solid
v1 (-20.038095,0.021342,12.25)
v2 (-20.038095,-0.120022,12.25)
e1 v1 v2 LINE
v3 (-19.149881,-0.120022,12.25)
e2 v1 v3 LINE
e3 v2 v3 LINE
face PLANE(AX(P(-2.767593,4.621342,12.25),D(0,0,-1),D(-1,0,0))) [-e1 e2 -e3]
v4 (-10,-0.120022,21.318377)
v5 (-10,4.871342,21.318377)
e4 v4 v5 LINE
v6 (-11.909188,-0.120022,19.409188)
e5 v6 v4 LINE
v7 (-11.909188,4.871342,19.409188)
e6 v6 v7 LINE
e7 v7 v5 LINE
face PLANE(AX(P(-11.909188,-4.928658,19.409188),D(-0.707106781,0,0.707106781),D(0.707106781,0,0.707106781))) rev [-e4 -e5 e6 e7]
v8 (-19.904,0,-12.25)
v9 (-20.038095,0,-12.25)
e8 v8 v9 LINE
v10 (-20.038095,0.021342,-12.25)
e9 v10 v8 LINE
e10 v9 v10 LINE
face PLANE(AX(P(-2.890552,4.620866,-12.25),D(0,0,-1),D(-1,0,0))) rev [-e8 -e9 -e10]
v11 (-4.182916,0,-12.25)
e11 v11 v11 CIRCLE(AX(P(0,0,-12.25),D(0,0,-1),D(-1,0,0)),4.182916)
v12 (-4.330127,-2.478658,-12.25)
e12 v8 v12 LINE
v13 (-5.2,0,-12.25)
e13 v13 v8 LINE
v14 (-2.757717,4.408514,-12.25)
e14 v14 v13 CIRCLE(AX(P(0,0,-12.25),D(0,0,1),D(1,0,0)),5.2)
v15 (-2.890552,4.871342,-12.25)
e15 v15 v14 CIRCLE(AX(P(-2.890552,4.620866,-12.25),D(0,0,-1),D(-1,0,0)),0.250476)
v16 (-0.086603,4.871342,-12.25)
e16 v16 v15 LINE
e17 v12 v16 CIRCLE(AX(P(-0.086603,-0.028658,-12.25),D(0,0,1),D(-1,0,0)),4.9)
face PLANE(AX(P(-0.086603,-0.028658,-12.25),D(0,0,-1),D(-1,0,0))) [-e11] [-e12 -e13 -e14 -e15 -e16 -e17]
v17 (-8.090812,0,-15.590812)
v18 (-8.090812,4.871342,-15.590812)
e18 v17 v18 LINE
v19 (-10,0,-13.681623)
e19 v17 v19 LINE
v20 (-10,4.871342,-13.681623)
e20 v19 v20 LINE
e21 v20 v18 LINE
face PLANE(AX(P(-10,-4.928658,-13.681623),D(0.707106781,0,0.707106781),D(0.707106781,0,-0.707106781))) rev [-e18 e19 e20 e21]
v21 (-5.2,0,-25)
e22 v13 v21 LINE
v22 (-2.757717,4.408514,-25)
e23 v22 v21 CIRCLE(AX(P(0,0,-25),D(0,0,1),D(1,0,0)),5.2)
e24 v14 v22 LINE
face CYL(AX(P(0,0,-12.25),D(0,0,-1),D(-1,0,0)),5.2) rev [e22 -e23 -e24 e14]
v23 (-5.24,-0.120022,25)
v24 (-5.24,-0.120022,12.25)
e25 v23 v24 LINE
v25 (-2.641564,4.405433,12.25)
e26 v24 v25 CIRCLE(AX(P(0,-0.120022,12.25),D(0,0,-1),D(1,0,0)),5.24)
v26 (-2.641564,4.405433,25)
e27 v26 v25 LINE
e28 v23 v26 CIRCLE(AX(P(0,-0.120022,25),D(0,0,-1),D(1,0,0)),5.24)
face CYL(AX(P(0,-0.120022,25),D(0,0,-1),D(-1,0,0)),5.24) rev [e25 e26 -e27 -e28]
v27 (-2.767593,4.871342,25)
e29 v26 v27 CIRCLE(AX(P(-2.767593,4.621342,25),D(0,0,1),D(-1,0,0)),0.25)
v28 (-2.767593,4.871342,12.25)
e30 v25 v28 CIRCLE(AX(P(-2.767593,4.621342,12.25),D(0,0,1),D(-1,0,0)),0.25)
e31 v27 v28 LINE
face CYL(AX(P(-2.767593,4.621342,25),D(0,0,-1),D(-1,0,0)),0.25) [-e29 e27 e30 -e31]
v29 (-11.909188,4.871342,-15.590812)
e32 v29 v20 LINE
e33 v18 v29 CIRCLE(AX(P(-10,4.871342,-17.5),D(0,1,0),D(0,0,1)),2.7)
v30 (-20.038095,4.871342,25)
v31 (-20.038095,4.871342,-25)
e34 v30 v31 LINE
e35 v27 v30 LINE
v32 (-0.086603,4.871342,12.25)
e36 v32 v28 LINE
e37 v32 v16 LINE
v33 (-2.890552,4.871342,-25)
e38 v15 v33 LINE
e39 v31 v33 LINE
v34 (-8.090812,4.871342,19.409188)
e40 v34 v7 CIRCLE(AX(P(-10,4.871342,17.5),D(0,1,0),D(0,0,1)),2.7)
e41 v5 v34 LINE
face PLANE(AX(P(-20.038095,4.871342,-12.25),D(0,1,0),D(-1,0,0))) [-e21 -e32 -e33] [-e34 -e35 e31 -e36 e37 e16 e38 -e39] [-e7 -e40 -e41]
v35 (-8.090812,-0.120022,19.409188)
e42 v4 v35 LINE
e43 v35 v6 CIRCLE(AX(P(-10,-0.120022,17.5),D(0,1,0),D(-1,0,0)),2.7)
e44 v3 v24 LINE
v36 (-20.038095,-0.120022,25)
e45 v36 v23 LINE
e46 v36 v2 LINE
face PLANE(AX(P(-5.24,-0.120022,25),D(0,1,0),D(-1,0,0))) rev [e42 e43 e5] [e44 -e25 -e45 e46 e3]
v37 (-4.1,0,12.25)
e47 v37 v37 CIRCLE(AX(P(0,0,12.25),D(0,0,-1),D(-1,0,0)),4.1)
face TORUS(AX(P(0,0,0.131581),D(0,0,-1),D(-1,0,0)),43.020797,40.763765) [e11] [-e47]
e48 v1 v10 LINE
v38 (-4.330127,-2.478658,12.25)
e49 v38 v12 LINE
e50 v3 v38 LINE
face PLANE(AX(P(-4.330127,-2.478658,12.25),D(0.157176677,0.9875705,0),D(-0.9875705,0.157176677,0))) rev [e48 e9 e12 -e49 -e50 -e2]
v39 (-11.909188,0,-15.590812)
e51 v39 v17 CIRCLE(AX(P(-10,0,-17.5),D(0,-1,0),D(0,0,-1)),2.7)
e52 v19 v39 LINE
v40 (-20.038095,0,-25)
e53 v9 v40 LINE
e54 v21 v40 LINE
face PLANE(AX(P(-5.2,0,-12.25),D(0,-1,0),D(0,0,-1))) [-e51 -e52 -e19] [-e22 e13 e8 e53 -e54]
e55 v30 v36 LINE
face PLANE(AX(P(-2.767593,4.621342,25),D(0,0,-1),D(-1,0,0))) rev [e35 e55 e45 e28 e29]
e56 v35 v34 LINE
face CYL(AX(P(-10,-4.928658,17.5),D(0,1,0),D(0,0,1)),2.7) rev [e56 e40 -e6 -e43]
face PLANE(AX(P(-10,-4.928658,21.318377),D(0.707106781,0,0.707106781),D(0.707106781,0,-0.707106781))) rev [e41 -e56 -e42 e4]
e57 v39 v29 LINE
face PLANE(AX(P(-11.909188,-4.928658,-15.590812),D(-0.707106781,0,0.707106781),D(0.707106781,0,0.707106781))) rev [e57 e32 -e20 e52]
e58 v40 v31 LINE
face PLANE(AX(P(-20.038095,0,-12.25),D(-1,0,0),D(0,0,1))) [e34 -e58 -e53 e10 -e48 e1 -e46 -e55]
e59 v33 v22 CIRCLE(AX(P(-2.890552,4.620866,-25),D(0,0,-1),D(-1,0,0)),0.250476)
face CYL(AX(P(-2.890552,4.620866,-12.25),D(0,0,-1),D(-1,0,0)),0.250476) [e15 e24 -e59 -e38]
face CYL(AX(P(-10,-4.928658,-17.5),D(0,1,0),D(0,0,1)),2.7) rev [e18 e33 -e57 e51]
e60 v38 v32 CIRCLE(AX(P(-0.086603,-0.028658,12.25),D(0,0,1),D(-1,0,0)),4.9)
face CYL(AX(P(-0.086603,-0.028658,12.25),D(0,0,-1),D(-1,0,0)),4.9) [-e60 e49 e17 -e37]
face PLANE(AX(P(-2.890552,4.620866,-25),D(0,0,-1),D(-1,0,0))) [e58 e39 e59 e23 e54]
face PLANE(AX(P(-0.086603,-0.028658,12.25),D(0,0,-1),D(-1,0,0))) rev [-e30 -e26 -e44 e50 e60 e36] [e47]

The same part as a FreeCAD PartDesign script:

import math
import FreeCAD as App
import Part
import Sketcher
Q = App.Units.Quantity

doc = App.newDocument("Part")
body = doc.addObject("PartDesign::Body", "Body")

# Sketch on XY plane
sketch1 = body.newObject("Sketcher::SketchObject", "Sketch")
sketch1.AttachmentSupport = (doc.getObject("XY_Plane"), [""])
sketch1.MapMode = "FlatFace"
sketch1.AttachmentOffset = App.Placement(App.Vector(0, 0, -25), App.Rotation())
sketch1.addGeometry([
    Part.LineSegment(App.Vector(-5.2, 0, 0), App.Vector(-20.04, 0, 0)),  # 0
    Part.LineSegment(App.Vector(-20.04, 0, 0), App.Vector(-20.04, 4.87, 0)),  # 1
    Part.LineSegment(App.Vector(-20.04, 4.87, 0), App.Vector(-2.89, 4.87, 0)),  # 2
    Part.ArcOfCircle(Part.Circle(App.Vector(-2.89, 4.62, 0), App.Vector(0, 0, 1), 0.25), math.radians(-58), math.radians(90)),  # 3
    Part.ArcOfCircle(Part.Circle(App.Vector(0, 0, 0), App.Vector(0, 0, 1), 5.2), math.radians(122), math.radians(180)),  # 4
], False)
sketch1.addConstraint([
    Sketcher.Constraint("Coincident", 0, 2, 1, 1),
    Sketcher.Constraint("Coincident", 1, 2, 2, 1),
    Sketcher.Constraint("Tangent", 2, 2, 3, 2),
    Sketcher.Constraint("Tangent", 3, 1, 4, 1),
    Sketcher.Constraint("Coincident", 4, 2, 0, 1),
    Sketcher.Constraint("Horizontal", 0),
    Sketcher.Constraint("Vertical", 1),
    Sketcher.Constraint("Horizontal", 2),
    Sketcher.Constraint("Coincident", 4, 3, -1, 1),
    Sketcher.Constraint("PointOnObject", 0, 2, -1),
    Sketcher.Constraint("Radius", 4, Q("5.2 mm")),
    Sketcher.Constraint("Radius", 3, Q("0.250476 mm")),
    Sketcher.Constraint("DistanceY", 1, 1, 1, 2, Q("4.871342 mm")),
    Sketcher.Constraint("DistanceX", 0, 2, 0, 1, Q("14.838095 mm")),
])
pad1 = body.newObject("PartDesign::Pad", "Pad")
pad1.Profile = sketch1
pad1.Length = 12.75

# Sketch on XY plane
sketch2 = body.newObject("Sketcher::SketchObject", "Sketch001")
sketch2.AttachmentSupport = (doc.getObject("XY_Plane"), [""])
sketch2.MapMode = "FlatFace"
sketch2.AttachmentOffset = App.Placement(App.Vector(0, 0, -12.25), App.Rotation())
sketch2.addGeometry([
    Part.LineSegment(App.Vector(-0.1, 4.9, 0), App.Vector(-20, 4.9, 0)),
    Part.LineSegment(App.Vector(-20, 4.9, 0), App.Vector(-20, 0, 0)),
    Part.LineSegment(App.Vector(-20, 0, 0), App.Vector(-4.3, -2.5, 0)),
    Part.ArcOfCircle(Part.Circle(App.Vector(-0.1, 0, 0), App.Vector(0, 0, 1), 4.9), math.radians(-150), math.radians(90)),
], False)
sketch2.addConstraint([
    Sketcher.Constraint("Coincident", 0, 2, 1, 1),
    Sketcher.Constraint("Coincident", 1, 2, 2, 1),
    Sketcher.Constraint("Coincident", 2, 2, 3, 1),
    Sketcher.Constraint("Tangent", 3, 2, 0, 1),
    Sketcher.Constraint("Horizontal", 0),
    Sketcher.Constraint("Vertical", 1),
    Sketcher.Constraint("Radius", 3, Q("4.9 mm")),
    Sketcher.Constraint("DistanceY", 1, 2, 1, 1, Q("4.85 mm")),
    Sketcher.Constraint("DistanceY", 2, 2, 1, 2, Q("2.5 mm")),
    Sketcher.Constraint("DistanceX", 0, 2, 0, 1, Q("19.951493 mm")),
    Sketcher.Constraint("DistanceY", 3, 3, -1, 1, Q("0.028658 mm")),
    Sketcher.Constraint("DistanceX", 3, 3, -1, 1, Q("0.086603 mm")),
])
pad2 = body.newObject("PartDesign::Pad", "Pad001")
pad2.Profile = sketch2
pad2.Length = 24.5

# Sketch on XY plane
sketch3 = body.newObject("Sketcher::SketchObject", "Sketch002")
sketch3.AttachmentSupport = (doc.getObject("XY_Plane"), [""])
sketch3.MapMode = "FlatFace"
sketch3.AttachmentOffset = App.Placement(App.Vector(0, 0, 12.25), App.Rotation())
sketch3.addGeometry([
    Part.LineSegment(App.Vector(-2.77, 4.87, 0), App.Vector(-20.04, 4.87, 0)),  # 0
    Part.LineSegment(App.Vector(-20.04, 4.87, 0), App.Vector(-20.04, -0.12, 0)),  # 1
    Part.LineSegment(App.Vector(-20.04, -0.12, 0), App.Vector(-5.24, -0.12, 0)),  # 2
    Part.ArcOfCircle(Part.Circle(App.Vector(0, -0.12, 0), App.Vector(0, 0, 1), 5.24), math.radians(120), math.radians(180)),  # 3
    Part.ArcOfCircle(Part.Circle(App.Vector(-2.77, 4.62, 0), App.Vector(0, 0, 1), 0.25), math.radians(-60), math.radians(90)),  # 4
], False)
sketch3.addConstraint([
    Sketcher.Constraint("Coincident", 0, 2, 1, 1),
    Sketcher.Constraint("Coincident", 1, 2, 2, 1),
    Sketcher.Constraint("Coincident", 2, 2, 3, 2),
    Sketcher.Constraint("Tangent", 3, 1, 4, 1),
    Sketcher.Constraint("Tangent", 4, 2, 0, 1),
    Sketcher.Constraint("Horizontal", 0),
    Sketcher.Constraint("Vertical", 1),
    Sketcher.Constraint("Horizontal", 2),
    Sketcher.Constraint("PointOnObject", 3, 3, -2),
    Sketcher.Constraint("Horizontal", 3, 3, 1, 2),
    Sketcher.Constraint("Radius", 3, Q("5.24 mm")),
    Sketcher.Constraint("Radius", 4, Q("0.25 mm")),
    Sketcher.Constraint("DistanceX", 0, 2, 0, 1, Q("17.270502 mm")),
    Sketcher.Constraint("DistanceX", 2, 1, 2, 2, Q("14.798095 mm")),
    Sketcher.Constraint("DistanceY", 3, 3, -1, 1, Q("0.120022 mm")),
])
pad3 = body.newObject("PartDesign::Pad", "Pad002")
pad3.Profile = sketch3
pad3.Length = 12.75

# Sketch on XZ plane
sketch4 = body.newObject("Sketcher::SketchObject", "Sketch003")
sketch4.AttachmentSupport = (doc.getObject("XZ_Plane"), [""])
sketch4.MapMode = "FlatFace"
sketch4.AttachmentOffset = App.Placement(App.Vector(0, 0, -4.871342), App.Rotation())
sketch4.addGeometry([
    Part.LineSegment(App.Vector(-10, -13.7, 0), App.Vector(-8.1, -15.6, 0)),
    Part.ArcOfCircle(Part.Circle(App.Vector(-10, -17.5, 0), App.Vector(0, 0, 1), 2.7), math.radians(135), math.radians(405)),
    Part.LineSegment(App.Vector(-11.9, -15.6, 0), App.Vector(-10, -13.7, 0)),
], False)
sketch4.addConstraint([
    Sketcher.Constraint("Tangent", 0, 2, 1, 2),
    Sketcher.Constraint("Tangent", 1, 1, 2, 1),
    Sketcher.Constraint("Coincident", 2, 2, 0, 1),
    Sketcher.Constraint("Perpendicular", 0, 2),
    Sketcher.Constraint("Horizontal", 0, 2, 1, 1),
    Sketcher.Constraint("Radius", 1, Q("2.7 mm")),
    Sketcher.Constraint("DistanceX", 1, 3, -1, 1, Q("10 mm")),
    Sketcher.Constraint("DistanceY", 1, 3, -1, 1, Q("17.5 mm")),
])
pocket1 = body.newObject("PartDesign::Pocket", "Pocket")
pocket1.Profile = sketch4
pocket1.Type = "ThroughAll"
pocket1.Reversed = True

# Sketch on XZ plane
sketch5 = body.newObject("Sketcher::SketchObject", "Sketch004")
sketch5.AttachmentSupport = (doc.getObject("XZ_Plane"), [""])
sketch5.MapMode = "FlatFace"
sketch5.AttachmentOffset = App.Placement(App.Vector(0, 0, -4.871342), App.Rotation())
sketch5.addGeometry([
    Part.LineSegment(App.Vector(-10, 21.3, 0), App.Vector(-8.1, 19.4, 0)),
    Part.ArcOfCircle(Part.Circle(App.Vector(-10, 17.5, 0), App.Vector(0, 0, 1), 2.7), math.radians(135), math.radians(405)),
    Part.LineSegment(App.Vector(-11.9, 19.4, 0), App.Vector(-10, 21.3, 0)),
], False)
sketch5.addConstraint([
    Sketcher.Constraint("Tangent", 0, 2, 1, 2),
    Sketcher.Constraint("Tangent", 1, 1, 2, 1),
    Sketcher.Constraint("Coincident", 2, 2, 0, 1),
    Sketcher.Constraint("Perpendicular", 0, 2),
    Sketcher.Constraint("Horizontal", 0, 2, 1, 1),
    Sketcher.Constraint("Radius", 1, Q("2.7 mm")),
    Sketcher.Constraint("DistanceX", 1, 3, -1, 1, Q("10 mm")),
    Sketcher.Constraint("DistanceY", -1, 1, 1, 3, Q("17.5 mm")),
])
pocket2 = body.newObject("PartDesign::Pocket", "Pocket001")
pocket2.Profile = sketch5
pocket2.Type = "ThroughAll"
pocket2.Reversed = True

# Sketch on XZ plane
sketch6 = body.newObject("Sketcher::SketchObject", "Sketch005")
sketch6.AttachmentSupport = (doc.getObject("XZ_Plane"), [""])
sketch6.MapMode = "FlatFace"
sketch6.addGeometry([
    Part.LineSegment(App.Vector(4.1, 12.2, 0), App.Vector(0, 12.2, 0)),
    Part.LineSegment(App.Vector(0, 12.2, 0), App.Vector(0, -12.2, 0)),
    Part.LineSegment(App.Vector(0, -12.2, 0), App.Vector(4.2, -12.2, 0)),
    Part.ArcOfCircle(Part.Circle(App.Vector(43, 0.1, 0), App.Vector(0, 0, 1), 40.8), math.radians(163), math.radians(198)),
], False)
sketch6.addConstraint([
    Sketcher.Constraint("Coincident", 0, 2, 1, 1),
    Sketcher.Constraint("Coincident", 1, 2, 2, 1),
    Sketcher.Constraint("Coincident", 2, 2, 3, 2),
    Sketcher.Constraint("Coincident", 3, 1, 0, 1),
    Sketcher.Constraint("Horizontal", 0),
    Sketcher.Constraint("Vertical", 1),
    Sketcher.Constraint("Horizontal", 2),
    Sketcher.Constraint("Symmetric", 0, 2, 1, 2, -1, 1),
    Sketcher.Constraint("DistanceX", 0, 2, 0, 1, Q("4.1 mm")),
    Sketcher.Constraint("DistanceY", 1, 2, 1, 1, Q("24.5 mm")),
    Sketcher.Constraint("Radius", 3, Q("40.763765 mm")),
    Sketcher.Constraint("DistanceX", 2, 1, 2, 2, Q("4.182916 mm")),
])
groove = body.newObject("PartDesign::Groove", "Groove")
groove.Profile = sketch6
groove.ReferenceAxis = (sketch6, ["V_Axis"])
groove.Angle = 360

doc.recompute()
